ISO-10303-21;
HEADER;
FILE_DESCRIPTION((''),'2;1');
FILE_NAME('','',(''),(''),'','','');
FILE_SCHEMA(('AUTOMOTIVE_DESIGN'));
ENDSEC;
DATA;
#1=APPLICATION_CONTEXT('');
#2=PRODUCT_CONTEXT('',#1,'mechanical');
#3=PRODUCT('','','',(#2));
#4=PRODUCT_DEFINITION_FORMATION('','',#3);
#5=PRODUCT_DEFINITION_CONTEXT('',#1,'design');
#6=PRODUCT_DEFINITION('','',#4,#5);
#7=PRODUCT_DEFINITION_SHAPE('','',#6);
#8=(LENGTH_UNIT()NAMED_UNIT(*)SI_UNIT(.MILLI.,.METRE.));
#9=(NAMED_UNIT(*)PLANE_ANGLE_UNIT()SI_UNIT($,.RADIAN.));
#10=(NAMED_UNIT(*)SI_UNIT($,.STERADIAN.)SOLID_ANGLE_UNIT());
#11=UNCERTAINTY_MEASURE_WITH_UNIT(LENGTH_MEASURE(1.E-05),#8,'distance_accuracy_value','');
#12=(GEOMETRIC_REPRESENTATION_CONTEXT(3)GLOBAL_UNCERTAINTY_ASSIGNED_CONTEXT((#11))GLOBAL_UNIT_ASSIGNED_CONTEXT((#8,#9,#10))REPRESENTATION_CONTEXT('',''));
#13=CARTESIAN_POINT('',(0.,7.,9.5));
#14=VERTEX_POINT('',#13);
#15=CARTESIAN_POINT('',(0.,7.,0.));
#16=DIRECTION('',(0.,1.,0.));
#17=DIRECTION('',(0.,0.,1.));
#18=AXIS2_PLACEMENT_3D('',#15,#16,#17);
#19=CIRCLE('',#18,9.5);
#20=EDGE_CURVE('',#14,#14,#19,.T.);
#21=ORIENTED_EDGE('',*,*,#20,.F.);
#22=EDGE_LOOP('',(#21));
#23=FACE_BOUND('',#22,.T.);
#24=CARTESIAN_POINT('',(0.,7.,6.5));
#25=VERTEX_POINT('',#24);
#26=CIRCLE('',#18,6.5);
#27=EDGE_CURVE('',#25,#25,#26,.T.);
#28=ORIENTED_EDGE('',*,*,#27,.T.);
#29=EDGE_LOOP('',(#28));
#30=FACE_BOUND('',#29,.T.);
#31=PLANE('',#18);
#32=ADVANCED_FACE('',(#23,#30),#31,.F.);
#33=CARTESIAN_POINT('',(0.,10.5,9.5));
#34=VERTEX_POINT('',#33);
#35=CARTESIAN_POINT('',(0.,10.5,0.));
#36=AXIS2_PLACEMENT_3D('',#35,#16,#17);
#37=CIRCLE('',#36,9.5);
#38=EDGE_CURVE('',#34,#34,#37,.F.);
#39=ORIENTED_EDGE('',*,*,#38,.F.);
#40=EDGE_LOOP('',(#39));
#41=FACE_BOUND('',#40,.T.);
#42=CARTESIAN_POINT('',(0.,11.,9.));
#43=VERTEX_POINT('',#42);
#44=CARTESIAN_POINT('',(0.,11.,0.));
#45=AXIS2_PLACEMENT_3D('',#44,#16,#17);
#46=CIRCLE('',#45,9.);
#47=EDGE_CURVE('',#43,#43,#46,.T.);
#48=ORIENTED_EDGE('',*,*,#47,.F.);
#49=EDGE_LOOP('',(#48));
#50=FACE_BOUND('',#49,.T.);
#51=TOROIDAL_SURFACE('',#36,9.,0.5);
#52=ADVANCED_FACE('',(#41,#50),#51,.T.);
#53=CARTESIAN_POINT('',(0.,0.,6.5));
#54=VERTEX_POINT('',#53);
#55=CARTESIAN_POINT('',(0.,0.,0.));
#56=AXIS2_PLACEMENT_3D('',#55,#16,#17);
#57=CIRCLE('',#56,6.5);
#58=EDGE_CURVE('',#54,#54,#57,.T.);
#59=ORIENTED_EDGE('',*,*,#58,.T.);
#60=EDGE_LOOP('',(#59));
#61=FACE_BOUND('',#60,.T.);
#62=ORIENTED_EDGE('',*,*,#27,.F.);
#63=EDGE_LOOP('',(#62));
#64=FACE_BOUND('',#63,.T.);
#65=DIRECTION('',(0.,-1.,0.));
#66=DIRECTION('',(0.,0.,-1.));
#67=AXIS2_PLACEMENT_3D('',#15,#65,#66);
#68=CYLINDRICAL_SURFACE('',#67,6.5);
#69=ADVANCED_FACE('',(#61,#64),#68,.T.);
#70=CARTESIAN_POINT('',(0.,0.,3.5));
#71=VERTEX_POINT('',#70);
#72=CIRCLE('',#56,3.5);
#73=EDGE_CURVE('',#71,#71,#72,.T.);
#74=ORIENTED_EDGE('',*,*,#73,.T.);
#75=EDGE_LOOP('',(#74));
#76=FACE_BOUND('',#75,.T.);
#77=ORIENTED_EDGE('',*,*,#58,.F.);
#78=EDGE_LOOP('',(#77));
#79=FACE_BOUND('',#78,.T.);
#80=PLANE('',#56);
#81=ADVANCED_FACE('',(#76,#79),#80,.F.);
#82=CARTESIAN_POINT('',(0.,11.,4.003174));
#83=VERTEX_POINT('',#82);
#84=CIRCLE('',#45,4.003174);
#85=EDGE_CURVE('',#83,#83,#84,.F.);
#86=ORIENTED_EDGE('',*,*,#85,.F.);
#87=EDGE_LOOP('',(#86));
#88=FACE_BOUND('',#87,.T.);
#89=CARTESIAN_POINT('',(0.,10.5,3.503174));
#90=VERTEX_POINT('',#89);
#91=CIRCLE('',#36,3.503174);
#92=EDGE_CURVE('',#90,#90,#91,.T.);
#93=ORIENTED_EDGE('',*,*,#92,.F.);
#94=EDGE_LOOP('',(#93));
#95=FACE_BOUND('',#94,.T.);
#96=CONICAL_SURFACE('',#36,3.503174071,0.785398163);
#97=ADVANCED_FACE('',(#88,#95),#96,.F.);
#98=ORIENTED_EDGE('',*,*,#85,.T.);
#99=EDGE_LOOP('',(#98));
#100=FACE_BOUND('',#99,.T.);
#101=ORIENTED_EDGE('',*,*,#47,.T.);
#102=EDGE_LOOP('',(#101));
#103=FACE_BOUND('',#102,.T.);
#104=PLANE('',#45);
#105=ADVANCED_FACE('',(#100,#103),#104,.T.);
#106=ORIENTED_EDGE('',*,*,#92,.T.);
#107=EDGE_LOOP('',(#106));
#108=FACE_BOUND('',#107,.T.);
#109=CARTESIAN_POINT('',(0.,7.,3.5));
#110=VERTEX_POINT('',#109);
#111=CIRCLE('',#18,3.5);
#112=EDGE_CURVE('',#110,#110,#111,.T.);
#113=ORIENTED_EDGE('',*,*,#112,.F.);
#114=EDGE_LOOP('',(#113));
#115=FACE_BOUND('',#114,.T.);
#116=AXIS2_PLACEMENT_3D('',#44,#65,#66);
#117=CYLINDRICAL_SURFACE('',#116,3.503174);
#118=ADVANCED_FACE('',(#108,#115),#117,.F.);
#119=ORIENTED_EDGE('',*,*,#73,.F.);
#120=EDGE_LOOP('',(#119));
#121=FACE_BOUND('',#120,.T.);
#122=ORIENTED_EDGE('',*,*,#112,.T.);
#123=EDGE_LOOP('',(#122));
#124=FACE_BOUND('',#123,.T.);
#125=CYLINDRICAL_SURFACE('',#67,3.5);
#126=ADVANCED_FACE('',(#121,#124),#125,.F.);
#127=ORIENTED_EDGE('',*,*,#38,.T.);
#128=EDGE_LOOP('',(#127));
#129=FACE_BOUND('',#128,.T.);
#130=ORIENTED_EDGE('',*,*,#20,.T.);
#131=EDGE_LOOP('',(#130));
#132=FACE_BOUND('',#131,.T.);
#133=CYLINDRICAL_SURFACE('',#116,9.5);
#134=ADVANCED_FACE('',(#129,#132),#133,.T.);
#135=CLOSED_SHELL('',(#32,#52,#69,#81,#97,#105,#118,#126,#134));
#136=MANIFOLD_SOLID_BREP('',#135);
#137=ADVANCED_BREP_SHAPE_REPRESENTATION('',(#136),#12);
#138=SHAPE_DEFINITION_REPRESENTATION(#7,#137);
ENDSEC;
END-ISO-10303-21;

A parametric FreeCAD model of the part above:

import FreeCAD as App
import Part
import Sketcher

V = App.Vector
Q = App.Units.Quantity


def edges_at(feature, points):
    """Names of the edges that pass closest to the given points."""
    edges = feature.Shape.Edges
    near = lambda p: min(range(len(edges)), key=lambda i: edges[i].distToShape(Part.Vertex(*p))[0])
    return sorted({f"Edge{near(p) + 1}" for p in points})

doc = App.newDocument("Part")
params = doc.addObject("Spreadsheet::Sheet", "Params")
for row, (alias, value) in enumerate([
    ("sketch1_diameter", "13 mm"),
    ("sketch1_diameter2", "7 mm"),
    ("pad1_length", "7 mm"),
    ("sketch2_diameter", "19 mm"),
    ("pad2_length", "4 mm"),
    ("chamfer_size", "0.5 mm"),
    ("fillet_radius", "0.5 mm"),
], start=1):
    params.set(f"A{row}", alias)
    params.set(f"B{row}", "=" + value)
    params.setAlias(f"B{row}", alias)

body = doc.addObject("PartDesign::Body", "Body")

sketch1 = doc.addObject("Sketcher::SketchObject", "Sketch")
body.addObject(sketch1)
sketch1.AttachmentSupport = (doc.XZ_Plane, [""])
sketch1.MapMode = "FlatFace"
sketch1.addGeometry([
    Part.Circle(V(0, 0, 0), V(0, 0, 1), 6.5),
    Part.Circle(V(0, 0, 0), V(0, 0, 1), 3.5),
], False)
sketch1.addConstraint([
    Sketcher.Constraint("Coincident", 0, 3, -1, 1),
    Sketcher.Constraint("Coincident", 1, 3, -1, 1),
    Sketcher.Constraint("Diameter", 0, Q("13 mm")),
    Sketcher.Constraint("Diameter", 1, Q("7 mm")),
])
sketch1.setExpression("Constraints[2]", "Params.sketch1_diameter")
sketch1.setExpression("Constraints[3]", "Params.sketch1_diameter2")
pad1 = doc.addObject("PartDesign::Pad", "Pad")
body.addObject(pad1)
pad1.Profile = sketch1
pad1.setExpression("Length", "Params.pad1_length")
pad1.Reversed = True

sketch2 = doc.addObject("Sketcher::SketchObject", "Sketch001")
body.addObject(sketch2)
sketch2.AttachmentSupport = (doc.XZ_Plane, [""])
sketch2.MapMode = "FlatFace"
sketch2.AttachmentOffset = App.Placement(V(0, 0, -7), App.Rotation())
sketch2.addGeometry([
    Part.Circle(V(0, 0, 0), V(0, 0, 1), 9.5),
    Part.Circle(V(0, 0, 0), V(0, 0, 1), 3.5),
], False)
sketch2.addConstraint([
    Sketcher.Constraint("Coincident", 0, 3, -1, 1),
    Sketcher.Constraint("Coincident", 1, 3, -1, 1),
    Sketcher.Constraint("Diameter", 0, Q("19 mm")),
    Sketcher.Constraint("Diameter", 1, Q("7.006348 mm")),
])
sketch2.setExpression("Constraints[2]", "Params.sketch2_diameter")
pad2 = doc.addObject("PartDesign::Pad", "Pad001")
body.addObject(pad2)
pad2.Profile = sketch2
pad2.setExpression("Length", "Params.pad2_length")
pad2.Reversed = True
doc.recompute()

chamfer = doc.addObject("PartDesign::Chamfer", "Chamfer")
body.addObject(chamfer)
chamfer.Base = (pad2, edges_at(pad2, [(0, 11, -3.503)]))
chamfer.setExpression("Size", "Params.chamfer_size")
doc.recompute()

fillet = doc.addObject("PartDesign::Fillet", "Fillet")
body.addObject(fillet)
fillet.Base = (chamfer, edges_at(chamfer, [(0, 11, -9.5)]))
fillet.setExpression("Radius", "Params.fillet_radius")

doc.recompute()
